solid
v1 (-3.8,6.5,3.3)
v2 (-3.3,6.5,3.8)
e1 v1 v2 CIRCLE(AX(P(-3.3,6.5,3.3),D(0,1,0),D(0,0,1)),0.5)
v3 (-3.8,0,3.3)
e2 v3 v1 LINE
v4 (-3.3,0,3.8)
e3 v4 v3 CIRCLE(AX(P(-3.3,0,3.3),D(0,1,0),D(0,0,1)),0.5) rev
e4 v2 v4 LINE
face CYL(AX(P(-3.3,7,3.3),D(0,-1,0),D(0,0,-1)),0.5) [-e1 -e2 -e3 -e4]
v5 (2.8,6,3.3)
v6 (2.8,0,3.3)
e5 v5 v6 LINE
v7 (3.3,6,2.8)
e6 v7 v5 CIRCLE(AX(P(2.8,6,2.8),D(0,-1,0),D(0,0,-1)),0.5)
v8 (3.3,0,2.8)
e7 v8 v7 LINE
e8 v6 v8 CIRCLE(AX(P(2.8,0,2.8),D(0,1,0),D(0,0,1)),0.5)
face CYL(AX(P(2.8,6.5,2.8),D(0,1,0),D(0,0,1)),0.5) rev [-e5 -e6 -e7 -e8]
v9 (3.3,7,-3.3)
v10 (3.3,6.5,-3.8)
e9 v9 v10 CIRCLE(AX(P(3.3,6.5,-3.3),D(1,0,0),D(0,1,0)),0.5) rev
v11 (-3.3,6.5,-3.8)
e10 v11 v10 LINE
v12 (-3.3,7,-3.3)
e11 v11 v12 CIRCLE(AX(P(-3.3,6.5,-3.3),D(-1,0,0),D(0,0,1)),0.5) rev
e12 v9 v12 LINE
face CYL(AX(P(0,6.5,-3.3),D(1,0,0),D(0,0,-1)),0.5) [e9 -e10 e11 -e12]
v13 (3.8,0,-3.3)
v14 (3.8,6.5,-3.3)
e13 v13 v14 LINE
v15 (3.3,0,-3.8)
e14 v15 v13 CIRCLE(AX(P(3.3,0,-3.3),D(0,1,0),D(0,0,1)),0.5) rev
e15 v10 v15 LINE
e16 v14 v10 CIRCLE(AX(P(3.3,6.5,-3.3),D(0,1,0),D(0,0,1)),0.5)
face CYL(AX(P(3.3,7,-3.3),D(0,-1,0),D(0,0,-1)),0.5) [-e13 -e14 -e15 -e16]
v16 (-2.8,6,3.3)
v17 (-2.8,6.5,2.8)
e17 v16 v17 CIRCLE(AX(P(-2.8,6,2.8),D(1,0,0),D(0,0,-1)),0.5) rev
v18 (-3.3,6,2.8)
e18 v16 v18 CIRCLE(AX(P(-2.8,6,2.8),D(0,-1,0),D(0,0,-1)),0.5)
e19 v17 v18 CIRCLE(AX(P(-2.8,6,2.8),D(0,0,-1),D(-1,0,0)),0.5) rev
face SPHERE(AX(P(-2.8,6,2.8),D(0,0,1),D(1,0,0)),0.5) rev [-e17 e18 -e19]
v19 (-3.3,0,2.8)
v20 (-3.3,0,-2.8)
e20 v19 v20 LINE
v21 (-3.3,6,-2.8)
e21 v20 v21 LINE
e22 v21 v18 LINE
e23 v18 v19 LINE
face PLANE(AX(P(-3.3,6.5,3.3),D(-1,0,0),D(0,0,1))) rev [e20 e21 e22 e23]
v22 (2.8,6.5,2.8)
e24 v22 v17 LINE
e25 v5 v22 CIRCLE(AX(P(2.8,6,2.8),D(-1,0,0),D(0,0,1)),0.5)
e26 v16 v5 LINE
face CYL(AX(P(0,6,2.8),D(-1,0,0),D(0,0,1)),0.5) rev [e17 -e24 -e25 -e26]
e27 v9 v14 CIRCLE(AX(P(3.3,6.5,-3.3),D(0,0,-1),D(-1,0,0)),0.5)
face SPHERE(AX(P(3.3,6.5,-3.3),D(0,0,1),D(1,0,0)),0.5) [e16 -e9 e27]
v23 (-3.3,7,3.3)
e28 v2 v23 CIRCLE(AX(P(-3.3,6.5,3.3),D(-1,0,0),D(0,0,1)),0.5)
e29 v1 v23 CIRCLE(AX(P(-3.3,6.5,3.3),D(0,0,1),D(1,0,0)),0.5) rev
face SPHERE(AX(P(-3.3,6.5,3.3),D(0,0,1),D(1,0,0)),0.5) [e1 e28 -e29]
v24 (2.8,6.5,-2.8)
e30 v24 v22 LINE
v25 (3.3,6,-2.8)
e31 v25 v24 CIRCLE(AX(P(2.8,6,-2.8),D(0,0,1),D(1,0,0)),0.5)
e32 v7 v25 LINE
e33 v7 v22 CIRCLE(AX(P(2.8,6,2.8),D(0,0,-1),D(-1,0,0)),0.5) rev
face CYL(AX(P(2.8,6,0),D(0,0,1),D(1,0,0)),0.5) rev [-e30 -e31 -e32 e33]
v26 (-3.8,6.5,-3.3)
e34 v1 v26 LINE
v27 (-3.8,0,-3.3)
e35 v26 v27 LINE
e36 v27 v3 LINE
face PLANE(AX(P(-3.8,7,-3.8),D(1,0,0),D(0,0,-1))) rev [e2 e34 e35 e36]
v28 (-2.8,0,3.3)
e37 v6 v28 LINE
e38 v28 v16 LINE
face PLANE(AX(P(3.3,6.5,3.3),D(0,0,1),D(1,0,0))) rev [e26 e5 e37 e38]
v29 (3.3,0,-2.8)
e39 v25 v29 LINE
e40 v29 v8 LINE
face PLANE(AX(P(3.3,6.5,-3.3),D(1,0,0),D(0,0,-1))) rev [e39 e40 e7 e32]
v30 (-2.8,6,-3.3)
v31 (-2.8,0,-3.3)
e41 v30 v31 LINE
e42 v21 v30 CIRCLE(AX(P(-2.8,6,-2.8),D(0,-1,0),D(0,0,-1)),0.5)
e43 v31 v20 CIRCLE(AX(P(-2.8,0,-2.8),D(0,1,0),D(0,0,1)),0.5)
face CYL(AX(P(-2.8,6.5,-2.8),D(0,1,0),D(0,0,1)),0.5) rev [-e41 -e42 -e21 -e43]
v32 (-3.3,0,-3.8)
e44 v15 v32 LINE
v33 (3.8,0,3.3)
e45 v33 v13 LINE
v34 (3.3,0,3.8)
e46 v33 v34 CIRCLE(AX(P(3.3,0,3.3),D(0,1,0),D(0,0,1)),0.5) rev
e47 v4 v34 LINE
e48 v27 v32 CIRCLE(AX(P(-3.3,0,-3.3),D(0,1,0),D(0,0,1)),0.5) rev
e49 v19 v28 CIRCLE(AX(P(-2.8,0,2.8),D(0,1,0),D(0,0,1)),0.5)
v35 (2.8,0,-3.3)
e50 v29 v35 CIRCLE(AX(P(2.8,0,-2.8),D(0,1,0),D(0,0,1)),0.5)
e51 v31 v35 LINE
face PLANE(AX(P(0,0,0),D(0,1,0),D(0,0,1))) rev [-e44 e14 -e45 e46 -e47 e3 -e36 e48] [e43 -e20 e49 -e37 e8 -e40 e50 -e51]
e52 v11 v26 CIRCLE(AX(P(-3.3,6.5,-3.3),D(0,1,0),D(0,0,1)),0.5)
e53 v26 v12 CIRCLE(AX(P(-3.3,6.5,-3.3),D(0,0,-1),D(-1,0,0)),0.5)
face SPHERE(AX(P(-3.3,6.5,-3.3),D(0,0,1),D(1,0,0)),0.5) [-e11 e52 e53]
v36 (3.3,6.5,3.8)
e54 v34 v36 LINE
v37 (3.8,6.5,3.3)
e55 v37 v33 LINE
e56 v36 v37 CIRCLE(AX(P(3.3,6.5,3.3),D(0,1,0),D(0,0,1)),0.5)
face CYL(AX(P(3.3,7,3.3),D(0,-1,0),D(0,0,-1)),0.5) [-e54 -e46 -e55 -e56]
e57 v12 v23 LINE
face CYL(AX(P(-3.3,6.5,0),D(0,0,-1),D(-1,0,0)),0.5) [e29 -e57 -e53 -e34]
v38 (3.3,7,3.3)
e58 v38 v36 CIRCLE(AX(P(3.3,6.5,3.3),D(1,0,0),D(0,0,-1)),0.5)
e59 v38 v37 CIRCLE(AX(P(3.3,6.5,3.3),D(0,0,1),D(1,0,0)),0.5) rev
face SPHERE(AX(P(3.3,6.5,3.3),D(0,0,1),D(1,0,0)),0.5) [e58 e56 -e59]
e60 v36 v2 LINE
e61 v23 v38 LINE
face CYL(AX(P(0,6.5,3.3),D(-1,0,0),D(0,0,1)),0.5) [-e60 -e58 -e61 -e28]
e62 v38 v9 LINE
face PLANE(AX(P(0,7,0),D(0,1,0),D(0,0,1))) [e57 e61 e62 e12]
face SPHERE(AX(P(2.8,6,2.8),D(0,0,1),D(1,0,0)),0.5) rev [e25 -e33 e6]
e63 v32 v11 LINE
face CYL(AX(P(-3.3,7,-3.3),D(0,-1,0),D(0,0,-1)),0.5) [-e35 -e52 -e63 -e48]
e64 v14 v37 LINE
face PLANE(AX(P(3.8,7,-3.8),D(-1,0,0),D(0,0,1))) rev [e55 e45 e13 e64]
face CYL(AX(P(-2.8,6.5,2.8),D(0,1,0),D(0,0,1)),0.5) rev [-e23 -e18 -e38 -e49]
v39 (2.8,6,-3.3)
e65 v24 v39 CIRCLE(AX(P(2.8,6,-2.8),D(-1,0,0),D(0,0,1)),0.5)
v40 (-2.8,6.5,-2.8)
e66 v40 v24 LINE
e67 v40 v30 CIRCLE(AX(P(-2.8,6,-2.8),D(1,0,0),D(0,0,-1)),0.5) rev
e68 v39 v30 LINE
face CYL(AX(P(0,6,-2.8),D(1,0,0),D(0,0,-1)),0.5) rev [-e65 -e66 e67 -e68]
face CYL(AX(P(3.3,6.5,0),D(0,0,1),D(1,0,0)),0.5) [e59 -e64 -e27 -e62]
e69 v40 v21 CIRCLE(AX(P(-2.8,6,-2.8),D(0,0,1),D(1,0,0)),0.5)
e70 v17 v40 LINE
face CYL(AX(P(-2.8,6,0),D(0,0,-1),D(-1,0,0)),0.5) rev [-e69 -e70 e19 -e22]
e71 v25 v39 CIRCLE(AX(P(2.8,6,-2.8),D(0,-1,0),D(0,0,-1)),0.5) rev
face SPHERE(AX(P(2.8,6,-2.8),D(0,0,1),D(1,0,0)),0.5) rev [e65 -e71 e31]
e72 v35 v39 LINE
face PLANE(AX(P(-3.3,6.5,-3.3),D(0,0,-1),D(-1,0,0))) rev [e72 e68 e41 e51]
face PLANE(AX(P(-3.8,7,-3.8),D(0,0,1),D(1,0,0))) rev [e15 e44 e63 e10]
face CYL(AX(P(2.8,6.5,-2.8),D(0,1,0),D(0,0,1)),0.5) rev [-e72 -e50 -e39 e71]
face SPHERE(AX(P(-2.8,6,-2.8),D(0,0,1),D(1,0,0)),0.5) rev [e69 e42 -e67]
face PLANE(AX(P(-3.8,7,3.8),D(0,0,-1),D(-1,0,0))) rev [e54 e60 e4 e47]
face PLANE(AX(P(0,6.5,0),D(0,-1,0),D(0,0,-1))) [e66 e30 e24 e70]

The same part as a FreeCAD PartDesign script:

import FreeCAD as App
import Part
import Sketcher

V = App.Vector


def edges_at(feature, points):
    """Names of the edges that pass closest to the given points."""
    edges = feature.Shape.Edges
    near = lambda p: min(range(len(edges)), key=lambda i: edges[i].distToShape(Part.Vertex(*p))[0])
    return sorted({f"Edge{near(p) + 1}" for p in points})

doc = App.newDocument("Part")
body = doc.addObject("PartDesign::Body", "Body")

sketch1 = doc.addObject("Sketcher::SketchObject", "Sketch")
body.addObject(sketch1)
sketch1.AttachmentSupport = (doc.XZ_Plane, [""])
sketch1.MapMode = "FlatFace"
sketch1.addGeometry(Part.LineSegment(V(-4, -4, 0), V(-4, 4, 0)), False)
sketch1.addGeometry(Part.LineSegment(V(-4, 4, 0), V(4, 4, 0)), False)
sketch1.addGeometry(Part.LineSegment(V(4, 4, 0), V(4, -4, 0)), False)
sketch1.addGeometry(Part.LineSegment(V(4, -4, 0), V(-4, -4, 0)), False)
sketch1.addConstraint(Sketcher.Constraint("Coincident", 0, 2, 1, 1))
sketch1.addConstraint(Sketcher.Constraint("Coincident", 1, 2, 2, 1))
sketch1.addConstraint(Sketcher.Constraint("Coincident", 2, 2, 3, 1))
sketch1.addConstraint(Sketcher.Constraint("Coincident", 3, 2, 0, 1))
sketch1.addConstraint(Sketcher.Constraint("Vertical", 0))
sketch1.addConstraint(Sketcher.Constraint("Horizontal", 1))
sketch1.addConstraint(Sketcher.Constraint("Vertical", 2))
sketch1.addConstraint(Sketcher.Constraint("Horizontal", 3))
sketch1.addConstraint(Sketcher.Constraint("Symmetric", 0, 2, 2, 2, -1, 1))
sketch1.addConstraint(Sketcher.Constraint("Equal", 3, 0))
sketch1.addConstraint(Sketcher.Constraint("DistanceX", 1, 1, 1, 2, 7.6))
pad1 = doc.addObject("PartDesign::Pad", "Pad")
body.addObject(pad1)
pad1.Profile = sketch1
pad1.Length = 7
pad1.Reversed = True

sketch2 = doc.addObject("Sketcher::SketchObject", "Sketch001")
body.addObject(sketch2)
sketch2.AttachmentSupport = (doc.XZ_Plane, [""])
sketch2.MapMode = "FlatFace"
sketch2.addGeometry(Part.LineSegment(V(-3, 3, 0), V(-3, -3, 0)), False)
sketch2.addGeometry(Part.LineSegment(V(-3, -3, 0), V(3, -3, 0)), False)
sketch2.addGeometry(Part.LineSegment(V(3, -3, 0), V(3, 3, 0)), False)
sketch2.addGeometry(Part.LineSegment(V(3, 3, 0), V(-3, 3, 0)), False)
sketch2.addConstraint(Sketcher.Constraint("Coincident", 0, 2, 1, 1))
sketch2.addConstraint(Sketcher.Constraint("Coincident", 1, 2, 2, 1))
sketch2.addConstraint(Sketcher.Constraint("Coincident", 2, 2, 3, 1))
sketch2.addConstraint(Sketcher.Constraint("Coincident", 3, 2, 0, 1))
sketch2.addConstraint(Sketcher.Constraint("Vertical", 0))
sketch2.addConstraint(Sketcher.Constraint("Horizontal", 1))
sketch2.addConstraint(Sketcher.Constraint("Vertical", 2))
sketch2.addConstraint(Sketcher.Constraint("Horizontal", 3))
sketch2.addConstraint(Sketcher.Constraint("Symmetric", 0, 2, 2, 2, -1, 1))
sketch2.addConstraint(Sketcher.Constraint("Equal", 3, 0))
sketch2.addConstraint(Sketcher.Constraint("DistanceX", 1, 1, 1, 2, 6.6))
pocket1 = doc.addObject("PartDesign::Pocket", "Pocket")
body.addObject(pocket1)
pocket1.Profile = sketch2
pocket1.Length = 6.5
doc.recompute()

fillet = doc.addObject("PartDesign::Fillet", "Fillet")
body.addObject(fillet)
fillet.Base = (pocket1, edges_at(pocket1, [
    (-3.8, 7, 0),
    (0, 7, 3.8),
    (0, 6.5, 3.3),
    (-3.3, 3.25, 3.3),
    (3.3, 6.5, 0),
    (3.3, 3.25, 3.3),
    (0, 6.5, -3.3),
    (3.3, 3.25, -3.3),
    (-3.3, 6.5, 0),
    (-3.3, 3.25, -3.3),
    (3.8, 7, 0),
    (0, 7, -3.8),
    (3.8, 3.5, 3.8),
    (-3.8, 3.5, 3.8),
    (-3.8, 3.5, -3.8),
    (3.8, 3.5, -3.8),
]))
fillet.Radius = 0.5

doc.recompute()
